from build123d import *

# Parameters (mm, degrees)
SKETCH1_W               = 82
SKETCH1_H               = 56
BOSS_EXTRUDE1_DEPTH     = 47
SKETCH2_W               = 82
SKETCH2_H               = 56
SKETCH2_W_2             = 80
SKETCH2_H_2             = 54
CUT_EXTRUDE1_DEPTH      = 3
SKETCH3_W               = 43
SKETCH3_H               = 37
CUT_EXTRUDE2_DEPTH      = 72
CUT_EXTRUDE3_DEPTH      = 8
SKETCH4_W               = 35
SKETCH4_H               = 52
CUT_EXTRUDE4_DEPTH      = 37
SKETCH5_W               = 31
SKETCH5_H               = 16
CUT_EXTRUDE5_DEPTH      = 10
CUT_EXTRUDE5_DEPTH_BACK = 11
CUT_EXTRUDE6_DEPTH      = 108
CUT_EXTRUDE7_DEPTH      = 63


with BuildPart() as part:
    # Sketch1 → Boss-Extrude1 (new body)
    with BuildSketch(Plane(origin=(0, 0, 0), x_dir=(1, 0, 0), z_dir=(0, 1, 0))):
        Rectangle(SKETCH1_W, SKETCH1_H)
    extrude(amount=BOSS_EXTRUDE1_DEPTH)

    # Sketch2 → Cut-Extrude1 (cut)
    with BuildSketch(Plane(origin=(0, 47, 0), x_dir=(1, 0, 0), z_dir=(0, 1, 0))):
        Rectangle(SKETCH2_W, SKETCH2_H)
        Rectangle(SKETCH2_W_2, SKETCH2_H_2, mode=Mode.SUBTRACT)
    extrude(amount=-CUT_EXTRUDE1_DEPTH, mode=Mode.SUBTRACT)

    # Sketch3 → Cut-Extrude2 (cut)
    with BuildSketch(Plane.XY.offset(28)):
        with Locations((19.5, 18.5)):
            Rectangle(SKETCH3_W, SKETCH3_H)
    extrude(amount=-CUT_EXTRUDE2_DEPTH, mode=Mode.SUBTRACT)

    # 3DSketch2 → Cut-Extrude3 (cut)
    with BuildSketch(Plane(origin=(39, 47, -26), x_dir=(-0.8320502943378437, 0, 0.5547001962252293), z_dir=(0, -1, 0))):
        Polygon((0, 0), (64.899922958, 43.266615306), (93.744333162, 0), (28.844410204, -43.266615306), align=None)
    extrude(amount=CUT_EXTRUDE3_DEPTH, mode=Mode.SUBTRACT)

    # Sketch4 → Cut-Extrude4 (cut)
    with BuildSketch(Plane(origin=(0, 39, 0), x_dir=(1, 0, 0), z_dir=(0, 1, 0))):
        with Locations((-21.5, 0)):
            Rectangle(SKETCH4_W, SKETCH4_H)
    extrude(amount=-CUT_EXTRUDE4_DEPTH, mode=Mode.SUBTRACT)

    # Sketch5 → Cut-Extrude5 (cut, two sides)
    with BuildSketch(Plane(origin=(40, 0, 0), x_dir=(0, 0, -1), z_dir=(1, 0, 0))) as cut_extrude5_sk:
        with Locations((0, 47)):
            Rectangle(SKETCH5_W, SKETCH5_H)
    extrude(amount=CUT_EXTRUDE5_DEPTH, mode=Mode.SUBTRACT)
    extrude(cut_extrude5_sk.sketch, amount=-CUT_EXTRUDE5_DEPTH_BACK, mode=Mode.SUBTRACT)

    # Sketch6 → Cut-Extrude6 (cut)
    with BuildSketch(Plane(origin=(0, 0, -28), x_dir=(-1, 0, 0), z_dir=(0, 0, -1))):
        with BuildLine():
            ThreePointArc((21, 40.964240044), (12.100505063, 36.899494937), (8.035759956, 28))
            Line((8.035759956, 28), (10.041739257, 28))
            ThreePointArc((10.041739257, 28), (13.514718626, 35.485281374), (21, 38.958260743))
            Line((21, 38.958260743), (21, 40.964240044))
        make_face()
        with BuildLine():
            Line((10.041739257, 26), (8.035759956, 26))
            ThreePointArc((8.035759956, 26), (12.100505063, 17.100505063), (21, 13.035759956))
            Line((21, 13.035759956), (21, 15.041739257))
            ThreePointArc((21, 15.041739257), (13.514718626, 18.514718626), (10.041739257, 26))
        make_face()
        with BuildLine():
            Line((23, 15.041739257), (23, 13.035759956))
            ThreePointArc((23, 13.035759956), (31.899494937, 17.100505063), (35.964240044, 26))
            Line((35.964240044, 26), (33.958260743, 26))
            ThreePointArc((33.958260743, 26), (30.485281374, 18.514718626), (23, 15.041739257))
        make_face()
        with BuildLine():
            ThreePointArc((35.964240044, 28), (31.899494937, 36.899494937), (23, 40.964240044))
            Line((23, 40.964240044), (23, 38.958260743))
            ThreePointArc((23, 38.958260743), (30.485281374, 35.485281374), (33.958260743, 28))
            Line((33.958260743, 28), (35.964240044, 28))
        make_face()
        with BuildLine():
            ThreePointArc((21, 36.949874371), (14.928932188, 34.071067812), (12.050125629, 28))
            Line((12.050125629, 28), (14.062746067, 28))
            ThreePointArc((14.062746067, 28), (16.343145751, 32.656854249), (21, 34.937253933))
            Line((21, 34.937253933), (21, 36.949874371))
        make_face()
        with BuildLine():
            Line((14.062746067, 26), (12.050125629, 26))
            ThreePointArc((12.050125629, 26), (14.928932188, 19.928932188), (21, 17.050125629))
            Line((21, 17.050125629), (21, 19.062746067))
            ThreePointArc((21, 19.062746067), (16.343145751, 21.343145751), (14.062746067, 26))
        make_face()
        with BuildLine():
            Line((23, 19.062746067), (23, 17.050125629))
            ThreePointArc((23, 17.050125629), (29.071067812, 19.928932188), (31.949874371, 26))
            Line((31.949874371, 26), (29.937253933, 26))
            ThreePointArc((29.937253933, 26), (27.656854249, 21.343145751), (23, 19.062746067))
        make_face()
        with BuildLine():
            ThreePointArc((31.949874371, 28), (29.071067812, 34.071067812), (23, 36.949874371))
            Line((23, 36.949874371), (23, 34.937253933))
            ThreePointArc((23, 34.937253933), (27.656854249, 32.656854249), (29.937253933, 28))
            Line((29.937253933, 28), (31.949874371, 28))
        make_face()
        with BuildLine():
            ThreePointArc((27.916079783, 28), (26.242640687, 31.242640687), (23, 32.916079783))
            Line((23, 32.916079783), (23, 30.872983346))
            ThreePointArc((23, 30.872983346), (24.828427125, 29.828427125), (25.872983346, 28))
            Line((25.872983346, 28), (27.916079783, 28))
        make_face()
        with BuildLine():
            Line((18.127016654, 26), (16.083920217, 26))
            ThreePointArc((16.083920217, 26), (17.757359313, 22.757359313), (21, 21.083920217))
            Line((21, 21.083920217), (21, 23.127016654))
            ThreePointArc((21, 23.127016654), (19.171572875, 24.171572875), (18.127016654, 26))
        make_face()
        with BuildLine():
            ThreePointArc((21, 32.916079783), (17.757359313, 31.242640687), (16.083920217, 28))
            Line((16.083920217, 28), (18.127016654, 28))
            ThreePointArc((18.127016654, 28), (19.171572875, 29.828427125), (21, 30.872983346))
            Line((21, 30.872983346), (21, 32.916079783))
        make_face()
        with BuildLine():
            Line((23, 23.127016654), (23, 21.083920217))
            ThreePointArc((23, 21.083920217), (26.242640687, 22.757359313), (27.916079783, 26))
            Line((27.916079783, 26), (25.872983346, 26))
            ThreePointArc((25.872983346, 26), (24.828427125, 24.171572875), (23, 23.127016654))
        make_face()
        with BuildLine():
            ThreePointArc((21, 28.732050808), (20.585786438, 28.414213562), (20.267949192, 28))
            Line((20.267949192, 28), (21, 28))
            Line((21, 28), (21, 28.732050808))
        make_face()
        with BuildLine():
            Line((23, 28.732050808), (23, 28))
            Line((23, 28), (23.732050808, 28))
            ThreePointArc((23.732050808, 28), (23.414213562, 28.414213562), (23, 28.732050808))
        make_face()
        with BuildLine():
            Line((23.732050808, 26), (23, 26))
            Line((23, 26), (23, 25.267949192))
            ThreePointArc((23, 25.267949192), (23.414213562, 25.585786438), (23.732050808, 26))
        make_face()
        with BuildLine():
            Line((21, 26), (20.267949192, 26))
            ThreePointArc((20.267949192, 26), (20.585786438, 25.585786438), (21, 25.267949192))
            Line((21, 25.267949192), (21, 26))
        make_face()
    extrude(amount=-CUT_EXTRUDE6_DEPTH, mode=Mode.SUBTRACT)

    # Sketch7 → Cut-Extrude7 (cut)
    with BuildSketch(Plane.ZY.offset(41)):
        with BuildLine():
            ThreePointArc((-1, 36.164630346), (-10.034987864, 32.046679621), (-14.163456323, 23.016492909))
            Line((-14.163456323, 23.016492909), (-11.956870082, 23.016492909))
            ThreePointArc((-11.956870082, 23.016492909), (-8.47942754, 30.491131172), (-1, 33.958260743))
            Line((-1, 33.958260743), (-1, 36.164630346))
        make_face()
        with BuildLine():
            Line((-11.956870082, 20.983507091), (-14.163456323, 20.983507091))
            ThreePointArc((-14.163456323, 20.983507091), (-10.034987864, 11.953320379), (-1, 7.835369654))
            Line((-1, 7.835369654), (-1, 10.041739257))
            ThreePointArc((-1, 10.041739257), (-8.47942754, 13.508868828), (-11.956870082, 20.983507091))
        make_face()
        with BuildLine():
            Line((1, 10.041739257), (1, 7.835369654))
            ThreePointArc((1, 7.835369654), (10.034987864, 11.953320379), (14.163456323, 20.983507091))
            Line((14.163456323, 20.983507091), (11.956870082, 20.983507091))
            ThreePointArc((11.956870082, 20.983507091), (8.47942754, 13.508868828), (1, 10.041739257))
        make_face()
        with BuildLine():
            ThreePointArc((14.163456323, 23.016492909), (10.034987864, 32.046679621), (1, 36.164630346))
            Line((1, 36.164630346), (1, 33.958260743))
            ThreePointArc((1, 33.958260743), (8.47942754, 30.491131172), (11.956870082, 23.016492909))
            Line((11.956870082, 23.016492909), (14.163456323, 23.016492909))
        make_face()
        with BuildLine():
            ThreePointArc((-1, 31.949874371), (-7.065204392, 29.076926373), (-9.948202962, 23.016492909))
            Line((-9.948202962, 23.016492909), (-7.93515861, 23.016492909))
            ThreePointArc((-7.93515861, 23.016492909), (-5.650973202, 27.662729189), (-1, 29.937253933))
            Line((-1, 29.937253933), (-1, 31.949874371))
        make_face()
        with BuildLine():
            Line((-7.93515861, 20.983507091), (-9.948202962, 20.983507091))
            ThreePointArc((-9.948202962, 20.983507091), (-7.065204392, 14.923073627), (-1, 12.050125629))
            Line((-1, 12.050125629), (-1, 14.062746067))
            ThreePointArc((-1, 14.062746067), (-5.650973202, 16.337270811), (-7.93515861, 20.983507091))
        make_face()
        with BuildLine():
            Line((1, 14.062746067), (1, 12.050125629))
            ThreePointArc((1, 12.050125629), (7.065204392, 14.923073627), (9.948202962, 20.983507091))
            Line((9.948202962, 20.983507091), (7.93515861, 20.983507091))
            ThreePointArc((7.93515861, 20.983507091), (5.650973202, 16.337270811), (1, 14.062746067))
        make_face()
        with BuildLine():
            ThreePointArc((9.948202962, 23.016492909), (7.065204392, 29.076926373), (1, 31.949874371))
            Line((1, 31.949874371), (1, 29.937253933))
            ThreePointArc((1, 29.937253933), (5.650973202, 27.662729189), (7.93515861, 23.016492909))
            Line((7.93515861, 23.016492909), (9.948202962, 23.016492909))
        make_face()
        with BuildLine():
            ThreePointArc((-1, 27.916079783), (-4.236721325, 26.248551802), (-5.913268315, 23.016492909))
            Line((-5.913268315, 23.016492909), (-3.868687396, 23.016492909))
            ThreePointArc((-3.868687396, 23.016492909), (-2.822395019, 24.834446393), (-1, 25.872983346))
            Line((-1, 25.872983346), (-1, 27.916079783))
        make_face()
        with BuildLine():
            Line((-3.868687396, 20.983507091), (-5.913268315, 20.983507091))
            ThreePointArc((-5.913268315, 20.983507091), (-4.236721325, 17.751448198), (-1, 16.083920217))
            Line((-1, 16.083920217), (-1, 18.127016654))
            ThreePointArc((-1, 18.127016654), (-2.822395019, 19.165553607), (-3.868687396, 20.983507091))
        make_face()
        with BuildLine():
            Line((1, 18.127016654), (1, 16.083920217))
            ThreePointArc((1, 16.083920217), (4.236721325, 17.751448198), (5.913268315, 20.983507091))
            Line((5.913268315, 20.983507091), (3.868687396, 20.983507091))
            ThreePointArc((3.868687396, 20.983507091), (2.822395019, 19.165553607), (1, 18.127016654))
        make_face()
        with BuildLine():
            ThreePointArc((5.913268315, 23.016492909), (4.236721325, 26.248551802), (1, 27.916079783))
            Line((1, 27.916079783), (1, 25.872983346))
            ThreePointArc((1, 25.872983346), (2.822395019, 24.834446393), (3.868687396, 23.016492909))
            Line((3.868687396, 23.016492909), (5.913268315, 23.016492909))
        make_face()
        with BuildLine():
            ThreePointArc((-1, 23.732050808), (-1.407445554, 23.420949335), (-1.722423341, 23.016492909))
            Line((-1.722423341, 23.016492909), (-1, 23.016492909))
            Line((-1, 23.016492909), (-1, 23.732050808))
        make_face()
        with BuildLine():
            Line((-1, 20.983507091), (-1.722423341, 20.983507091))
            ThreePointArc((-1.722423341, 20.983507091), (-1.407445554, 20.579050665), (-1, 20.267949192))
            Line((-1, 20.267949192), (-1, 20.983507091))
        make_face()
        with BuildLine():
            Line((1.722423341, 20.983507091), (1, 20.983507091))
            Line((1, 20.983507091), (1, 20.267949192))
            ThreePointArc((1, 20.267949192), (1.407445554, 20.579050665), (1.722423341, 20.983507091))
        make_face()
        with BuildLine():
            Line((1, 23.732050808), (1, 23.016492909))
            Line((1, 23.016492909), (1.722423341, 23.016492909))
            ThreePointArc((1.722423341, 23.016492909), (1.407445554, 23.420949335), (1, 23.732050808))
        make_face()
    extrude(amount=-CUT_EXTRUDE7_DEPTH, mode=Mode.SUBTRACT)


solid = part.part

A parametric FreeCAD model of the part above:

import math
import FreeCAD as App
import Part
import Sketcher
from FreeCAD import Vector
Q = App.Units.Quantity


def add_polygon(sketch, points):
    """Adds a closed chain of lines whose ends are joined by coincident constraints."""
    first, n = sketch.GeometryCount, len(points)
    for a, b in zip(points, points[1:] + points[:1]):
        sketch.addGeometry(Part.LineSegment(App.Vector(*a, 0), App.Vector(*b, 0)), False)
    for i in range(n):
        sketch.addConstraint(Sketcher.Constraint("Coincident", first + i, 2, first + (i + 1) % n, 1))

doc = App.newDocument("Part")
params = doc.addObject("Spreadsheet::Sheet", "Params")
for row, (alias, value) in enumerate([
    ("sketch1_width", "82 mm"),
    ("sketch1_height", "56 mm"),
    ("pad1_length", "47 mm"),
    ("sketch2_width", "82 mm"),
    ("sketch2_width2", "80 mm"),
    ("sketch2_height", "56 mm"),
    ("sketch2_height2", "54 mm"),
    ("pocket1_length", "3 mm"),
    ("sketch3_width", "43 mm"),
    ("sketch3_height", "37 mm"),
    ("pocket2_length", "72 mm"),
    ("sketch4_width", "78 mm"),
    ("sketch4_height", "52 mm"),
    ("pocket3_length", "8 mm"),
    ("sketch5_width", "35 mm"),
    ("sketch5_height", "52 mm"),
    ("pocket4_length", "37 mm"),
    ("sketch6_width", "16 mm"),
    ("sketch6_height", "31 mm"),
    ("pocket5_length", "10 mm"),
    ("pocket5_length2", "11 mm"),
    ("sketch7_radius", "14 mm"),
    ("sketch7_radius2", "12 mm"),
    ("sketch7_radius3", "10 mm"),
    ("sketch7_radius4", "8 mm"),
    ("sketch7_radius5", "6 mm"),
    ("pocket6_length", "108 mm"),
    ("sketch8_radius", "12 mm"),
    ("sketch8_radius2", "10 mm"),
    ("sketch8_radius3", "8 mm"),
    ("sketch8_radius4", "6 mm"),
    ("sketch8_radius5", "4 mm"),
    ("pocket7_length", "63 mm"),
], start=1):
    params.set(f"A{row}", alias)
    params.set(f"B{row}", "=" + value)
    params.setAlias(f"B{row}", alias)

body = doc.addObject("PartDesign::Body", "Body")

sketch1 = doc.addObject("Sketcher::SketchObject", "Sketch")
body.addObject(sketch1)
sketch1.AttachmentSupport = (doc.XZ_Plane, [""])
sketch1.MapMode = "FlatFace"
add_polygon(sketch1, [(-41, -28), (-41, 28), (41, 28), (41, -28)])
sketch1.addConstraint([
    Sketcher.Constraint("Vertical", 0),
    Sketcher.Constraint("Horizontal", 1),
    Sketcher.Constraint("Vertical", 2),
    Sketcher.Constraint("Horizontal", 3),
    Sketcher.Constraint("Symmetric", 0, 2, 2, 2, -1, 1),
    Sketcher.Constraint("DistanceX", 1, 1, 1, 2, Q("82 mm")),
    Sketcher.Constraint("DistanceY", 0, 1, 0, 2, Q("56 mm")),
])
sketch1.setExpression("Constraints[9]", "Params.sketch1_width")
sketch1.setExpression("Constraints[10]", "Params.sketch1_height")
pad1 = doc.addObject("PartDesign::Pad", "Pad")
body.addObject(pad1)
pad1.Profile = sketch1
pad1.setExpression("Length", "Params.pad1_length")
pad1.Reversed = True

sketch2 = doc.addObject("Sketcher::SketchObject", "Sketch001")
body.addObject(sketch2)
sketch2.AttachmentSupport = (doc.XZ_Plane, [""])
sketch2.MapMode = "FlatFace"
sketch2.AttachmentOffset = App.Placement(Vector(0, 0, -47), App.Rotation())
add_polygon(sketch2, [(-41, -28), (-41, 28), (41, 28), (41, -28)])
add_polygon(sketch2, [(40, 27), (-40, 27), (-40, -27), (40, -27)])
sketch2.addConstraint([
    Sketcher.Constraint("Vertical", 0),
    Sketcher.Constraint("Horizontal", 1),
    Sketcher.Constraint("Vertical", 2),
    Sketcher.Constraint("Horizontal", 3),
    Sketcher.Constraint("Horizontal", 4),
    Sketcher.Constraint("Vertical", 5),
    Sketcher.Constraint("Horizontal", 6),
    Sketcher.Constraint("Vertical", 7),
    Sketcher.Constraint("Symmetric", 0, 2, 2, 2, -1, 1),
    Sketcher.Constraint("Symmetric", 4, 2, 6, 2, -1, 1),
    Sketcher.Constraint("DistanceX", 1, 1, 1, 2, Q("82 mm")),
    Sketcher.Constraint("DistanceX", 4, 2, 4, 1, Q("80 mm")),
    Sketcher.Constraint("DistanceY", 0, 1, 0, 2, Q("56 mm")),
    Sketcher.Constraint("DistanceY", 5, 2, 5, 1, Q("54 mm")),
])
sketch2.setExpression("Constraints[18]", "Params.sketch2_width")
sketch2.setExpression("Constraints[19]", "Params.sketch2_width2")
sketch2.setExpression("Constraints[20]", "Params.sketch2_height")
sketch2.setExpression("Constraints[21]", "Params.sketch2_height2")
pocket1 = doc.addObject("PartDesign::Pocket", "Pocket")
body.addObject(pocket1)
pocket1.Profile = sketch2
pocket1.setExpression("Length", "Params.pocket1_length")
pocket1.Reversed = True

sketch3 = doc.addObject("Sketcher::SketchObject", "Sketch002")
body.addObject(sketch3)
sketch3.AttachmentSupport = (doc.XY_Plane, [""])
sketch3.MapMode = "FlatFace"
sketch3.AttachmentOffset = App.Placement(Vector(0, 0, 28), App.Rotation())
add_polygon(sketch3, [(-2, 37), (-2, 0), (41, 0), (41, 37)])
sketch3.addConstraint([
    Sketcher.Constraint("Vertical", 0),
    Sketcher.Constraint("Horizontal", 1),
    Sketcher.Constraint("Vertical", 2),
    Sketcher.Constraint("Horizontal", 3),
    Sketcher.Constraint("PointOnObject", 0, 2, -1),
    Sketcher.Constraint("DistanceX", 1, 1, 1, 2, Q("43 mm")),
    Sketcher.Constraint("DistanceY", 0, 2, 0, 1, Q("37 mm")),
    Sketcher.Constraint("DistanceX", 0, 2, -1, 1, Q("2 mm")),
])
sketch3.setExpression("Constraints[9]", "Params.sketch3_width")
sketch3.setExpression("Constraints[10]", "Params.sketch3_height")
pocket2 = doc.addObject("PartDesign::Pocket", "Pocket001")
body.addObject(pocket2)
pocket2.Profile = sketch3
pocket2.setExpression("Length", "Params.pocket2_length")

sketch4 = doc.addObject("Sketcher::SketchObject", "Sketch003")
body.addObject(sketch4)
sketch4.AttachmentSupport = (doc.XZ_Plane, [""])
sketch4.MapMode = "FlatFace"
sketch4.AttachmentOffset = App.Placement(Vector(0, 0, -47), App.Rotation())
add_polygon(sketch4, [(-39, -26), (39, -26), (39, 26), (-39, 26)])
sketch4.addConstraint([
    Sketcher.Constraint("Horizontal", 0),
    Sketcher.Constraint("Vertical", 1),
    Sketcher.Constraint("Horizontal", 2),
    Sketcher.Constraint("Vertical", 3),
    Sketcher.Constraint("Symmetric", 0, 2, 2, 2, -1, 1),
    Sketcher.Constraint("DistanceX", 0, 1, 0, 2, Q("78 mm")),
    Sketcher.Constraint("DistanceY", 1, 1, 1, 2, Q("52 mm")),
])
sketch4.setExpression("Constraints[9]", "Params.sketch4_width")
sketch4.setExpression("Constraints[10]", "Params.sketch4_height")
pocket3 = doc.addObject("PartDesign::Pocket", "Pocket002")
body.addObject(pocket3)
pocket3.Profile = sketch4
pocket3.setExpression("Length", "Params.pocket3_length")
pocket3.Reversed = True

sketch5 = doc.addObject("Sketcher::SketchObject", "Sketch004")
body.addObject(sketch5)
sketch5.AttachmentSupport = (doc.XZ_Plane, [""])
sketch5.MapMode = "FlatFace"
sketch5.AttachmentOffset = App.Placement(Vector(0, 0, -39), App.Rotation())
add_polygon(sketch5, [(-39, -26), (-39, 26), (-4, 26), (-4, -26)])
sketch5.addConstraint([
    Sketcher.Constraint("Vertical", 0),
    Sketcher.Constraint("Horizontal", 1),
    Sketcher.Constraint("Vertical", 2),
    Sketcher.Constraint("Horizontal", 3),
    Sketcher.Constraint("DistanceX", 1, 1, 1, 2, Q("35 mm")),
    Sketcher.Constraint("DistanceY", 0, 1, 0, 2, Q("52 mm")),
    Sketcher.Constraint("DistanceX", 0, 2, -1, 1, Q("39 mm")),
    Sketcher.Constraint("DistanceY", -1, 1, 0, 2, Q("26 mm")),
])
sketch5.setExpression("Constraints[8]", "Params.sketch5_width")
sketch5.setExpression("Constraints[9]", "Params.sketch5_height")
pocket4 = doc.addObject("PartDesign::Pocket", "Pocket003")
body.addObject(pocket4)
pocket4.Profile = sketch5
pocket4.setExpression("Length", "Params.pocket4_length")
pocket4.Reversed = True

sketch6 = doc.addObject("Sketcher::SketchObject", "Sketch005")
body.addObject(sketch6)
sketch6.AttachmentSupport = (doc.YZ_Plane, [""])
sketch6.MapMode = "FlatFace"
sketch6.AttachmentOffset = App.Placement(Vector(0, 0, 40), App.Rotation())
add_polygon(sketch6, [(55, 16), (39, 16), (39, -16), (55, -16)])
sketch6.addConstraint([
    Sketcher.Constraint("Horizontal", 0),
    Sketcher.Constraint("Vertical", 1),
    Sketcher.Constraint("Horizontal", 2),
    Sketcher.Constraint("Vertical", 3),
    Sketcher.Constraint("DistanceX", 0, 2, 0, 1, Q("16 mm")),
    Sketcher.Constraint("DistanceY", 1, 2, 1, 1, Q("31 mm")),
    Sketcher.Constraint("DistanceX", -1, 1, 0, 2, Q("39 mm")),
    Sketcher.Constraint("DistanceY", -1, 1, 0, 2, Q("15.5 mm")),
])
sketch6.setExpression("Constraints[8]", "Params.sketch6_width")
sketch6.setExpression("Constraints[9]", "Params.sketch6_height")
pocket5 = doc.addObject("PartDesign::Pocket", "Pocket004")
body.addObject(pocket5)
pocket5.Profile = sketch6
pocket5.Type = "TwoLengths"
pocket5.setExpression("Length", "Params.pocket5_length")
pocket5.setExpression("Length2", "Params.pocket5_length2")
pocket5.Reversed = True

sketch7 = doc.addObject("Sketcher::SketchObject", "Sketch006")
body.addObject(sketch7)
sketch7.AttachmentSupport = (doc.XY_Plane, [""])
sketch7.MapMode = "FlatFace"
sketch7.AttachmentOffset = App.Placement(Vector(0, 0, -28), App.Rotation())
sketch7.addGeometry([
    Part.ArcOfCircle(Part.Circle(Vector(-22, 27, 0), Vector(0, 0, 1), 14), math.radians(4), math.radians(86)),
    Part.LineSegment(Vector(-8, 28, 0), Vector(-10, 28, 0)),
    Part.ArcOfCircle(Part.Circle(Vector(-22, 27, 0), Vector(0, 0, 1), 12), math.radians(5), math.radians(85)),
    Part.LineSegment(Vector(-21, 39, 0), Vector(-21, 41, 0)),
    Part.LineSegment(Vector(-10, 26, 0), Vector(-8, 26, 0)),
    Part.ArcOfCircle(Part.Circle(Vector(-22, 27, 0), Vector(0, 0, 1), 14), math.radians(-86), math.radians(-4)),
    Part.LineSegment(Vector(-21, 13, 0), Vector(-21, 15, 0)),
    Part.ArcOfCircle(Part.Circle(Vector(-22, 27, 0), Vector(0, 0, 1), 12), math.radians(-85), math.radians(-5)),
    Part.LineSegment(Vector(-23, 15, 0), Vector(-23, 13, 0)),
    Part.ArcOfCircle(Part.Circle(Vector(-22, 27, 0), Vector(0, 0, 1), 14), math.radians(-176), math.radians(-94)),
    Part.LineSegment(Vector(-36, 26, 0), Vector(-34, 26, 0)),
    Part.ArcOfCircle(Part.Circle(Vector(-22, 27, 0), Vector(0, 0, 1), 12), math.radians(-175), math.radians(-95)),
    Part.ArcOfCircle(Part.Circle(Vector(-22, 27, 0), Vector(0, 0, 1), 14), math.radians(94), math.radians(176)),
    Part.LineSegment(Vector(-23, 41, 0), Vector(-23, 39, 0)),
    Part.ArcOfCircle(Part.Circle(Vector(-22, 27, 0), Vector(0, 0, 1), 12), math.radians(95), math.radians(175)),
    Part.LineSegment(Vector(-34, 28, 0), Vector(-36, 28, 0)),
    Part.ArcOfCircle(Part.Circle(Vector(-22, 27, 0), Vector(0, 0, 1), 10), math.radians(6), math.radians(84)),
    Part.LineSegment(Vector(-12.1, 28, 0), Vector(-14.1, 28, 0)),
    Part.ArcOfCircle(Part.Circle(Vector(-22, 27, 0), Vector(0, 0, 1), 8), math.radians(7), math.radians(83)),
    Part.LineSegment(Vector(-21, 34.9, 0), Vector(-21, 36.9, 0)),
    Part.LineSegment(Vector(-14.1, 26, 0), Vector(-12.1, 26, 0)),
    Part.ArcOfCircle(Part.Circle(Vector(-22, 27, 0), Vector(0, 0, 1), 10), math.radians(-84), math.radians(-6)),
    Part.LineSegment(Vector(-21, 17.1, 0), Vector(-21, 19.1, 0)),
    Part.ArcOfCircle(Part.Circle(Vector(-22, 27, 0), Vector(0, 0, 1), 8), math.radians(-83), math.radians(-7)),
    Part.LineSegment(Vector(-23, 19.1, 0), Vector(-23, 17.1, 0)),
    Part.ArcOfCircle(Part.Circle(Vector(-22, 27, 0), Vector(0, 0, 1), 10), math.radians(-174), math.radians(-96)),
    Part.LineSegment(Vector(-31.9, 26, 0), Vector(-29.9, 26, 0)),
    Part.ArcOfCircle(Part.Circle(Vector(-22, 27, 0), Vector(0, 0, 1), 8), math.radians(-173), math.radians(-97)),
    Part.ArcOfCircle(Part.Circle(Vector(-22, 27, 0), Vector(0, 0, 1), 10), math.radians(96), math.radians(174)),
    Part.LineSegment(Vector(-23, 36.9, 0), Vector(-23, 34.9, 0)),
    Part.ArcOfCircle(Part.Circle(Vector(-22, 27, 0), Vector(0, 0, 1), 8), math.radians(97), math.radians(173)),
    Part.LineSegment(Vector(-29.9, 28, 0), Vector(-31.9, 28, 0)),
    Part.ArcOfCircle(Part.Circle(Vector(-22, 27, 0), Vector(0, 0, 1), 6), math.radians(100), math.radians(170)),
    Part.LineSegment(Vector(-23, 32.9, 0), Vector(-23, 30.9, 0)),
    Part.ArcOfCircle(Part.Circle(Vector(-22, 27, 0), Vector(0, 0, 1), 4), math.radians(104), math.radians(166)),
    Part.LineSegment(Vector(-25.9, 28, 0), Vector(-27.9, 28, 0)),
    Part.LineSegment(Vector(-18.1, 26, 0), Vector(-16.1, 26, 0)),
    Part.ArcOfCircle(Part.Circle(Vector(-22, 27, 0), Vector(0, 0, 1), 6), math.radians(-80), math.radians(-10)),
    Part.LineSegment(Vector(-21, 21.1, 0), Vector(-21, 23.1, 0)),
    Part.ArcOfCircle(Part.Circle(Vector(-22, 27, 0), Vector(0, 0, 1), 4), math.radians(-76), math.radians(-14)),
    Part.ArcOfCircle(Part.Circle(Vector(-22, 27, 0), Vector(0, 0, 1), 6), math.radians(10), math.radians(80)),
    Part.LineSegment(Vector(-16.1, 28, 0), Vector(-18.1, 28, 0)),
    Part.ArcOfCircle(Part.Circle(Vector(-22, 27, 0), Vector(0, 0, 1), 4), math.radians(14), math.radians(76)),
    Part.LineSegment(Vector(-21, 30.9, 0), Vector(-21, 32.9, 0)),
    Part.LineSegment(Vector(-23, 23.1, 0), Vector(-23, 21.1, 0)),
    Part.ArcOfCircle(Part.Circle(Vector(-22, 27, 0), Vector(0, 0, 1), 6), math.radians(-170), math.radians(-100)),
    Part.LineSegment(Vector(-27.9, 26, 0), Vector(-25.9, 26, 0)),
    Part.ArcOfCircle(Part.Circle(Vector(-22, 27, 0), Vector(0, 0, 1), 4), math.radians(-166), math.radians(-104)),
    Part.ArcOfCircle(Part.Circle(Vector(-22, 27, 0), Vector(0, 0, 1), 2), math.radians(30), math.radians(60)),
    Part.LineSegment(Vector(-20.3, 28, 0), Vector(-21, 28, 0)),
    Part.LineSegment(Vector(-21, 28, 0), Vector(-21, 28.7, 0)),
    Part.LineSegment(Vector(-23, 28.7, 0), Vector(-23, 28, 0)),
    Part.LineSegment(Vector(-23, 28, 0), Vector(-23.7, 28, 0)),
    Part.ArcOfCircle(Part.Circle(Vector(-22, 27, 0), Vector(0, 0, 1), 2), math.radians(120), math.radians(150)),
    Part.LineSegment(Vector(-23.7, 26, 0), Vector(-23, 26, 0)),
    Part.LineSegment(Vector(-23, 26, 0), Vector(-23, 25.3, 0)),
    Part.ArcOfCircle(Part.Circle(Vector(-22, 27, 0), Vector(0, 0, 1), 2), math.radians(-150), math.radians(-120)),
    Part.LineSegment(Vector(-21, 26, 0), Vector(-20.3, 26, 0)),
    Part.ArcOfCircle(Part.Circle(Vector(-22, 27, 0), Vector(0, 0, 1), 2), math.radians(-60), math.radians(-30)),
    Part.LineSegment(Vector(-21, 25.3, 0), Vector(-21, 26, 0)),
], False)
sketch7.addConstraint([
    Sketcher.Constraint("Coincident", 0, 1, 1, 1),
    Sketcher.Constraint("Coincident", 1, 2, 2, 1),
    Sketcher.Constraint("Coincident", 2, 2, 3, 1),
    Sketcher.Constraint("Coincident", 3, 2, 0, 2),
    Sketcher.Constraint("Coincident", 4, 2, 5, 2),
    Sketcher.Constraint("Coincident", 5, 1, 6, 1),
    Sketcher.Constraint("Coincident", 6, 2, 7, 1),
    Sketcher.Constraint("Coincident", 7, 2, 4, 1),
    Sketcher.Constraint("Coincident", 8, 2, 9, 2),
    Sketcher.Constraint("Coincident", 9, 1, 10, 1),
    Sketcher.Constraint("Coincident", 10, 2, 11, 1),
    Sketcher.Constraint("Coincident", 11, 2, 8, 1),
    Sketcher.Constraint("Coincident", 12, 1, 13, 1),
    Sketcher.Constraint("Coincident", 13, 2, 14, 1),
    Sketcher.Constraint("Coincident", 14, 2, 15, 1),
    Sketcher.Constraint("Coincident", 15, 2, 12, 2),
    Sketcher.Constraint("Coincident", 16, 1, 17, 1),
    Sketcher.Constraint("Coincident", 17, 2, 18, 1),
    Sketcher.Constraint("Coincident", 18, 2, 19, 1),
    Sketcher.Constraint("Coincident", 19, 2, 16, 2),
    Sketcher.Constraint("Coincident", 20, 2, 21, 2),
    Sketcher.Constraint("Coincident", 21, 1, 22, 1),
    Sketcher.Constraint("Coincident", 22, 2, 23, 1),
    Sketcher.Constraint("Coincident", 23, 2, 20, 1),
    Sketcher.Constraint("Coincident", 24, 2, 25, 2),
    Sketcher.Constraint("Coincident", 25, 1, 26, 1),
    Sketcher.Constraint("Coincident", 26, 2, 27, 1),
    Sketcher.Constraint("Coincident", 27, 2, 24, 1),
    Sketcher.Constraint("Coincident", 28, 1, 29, 1),
    Sketcher.Constraint("Coincident", 29, 2, 30, 1),
    Sketcher.Constraint("Coincident", 30, 2, 31, 1),
    Sketcher.Constraint("Coincident", 31, 2, 28, 2),
    Sketcher.Constraint("Coincident", 32, 1, 33, 1),
    Sketcher.Constraint("Coincident", 33, 2, 34, 1),
    Sketcher.Constraint("Coincident", 34, 2, 35, 1),
    Sketcher.Constraint("Coincident", 35, 2, 32, 2),
    Sketcher.Constraint("Coincident", 36, 2, 37, 2),
    Sketcher.Constraint("Coincident", 37, 1, 38, 1),
    Sketcher.Constraint("Coincident", 38, 2, 39, 1),
    Sketcher.Constraint("Coincident", 39, 2, 36, 1),
    Sketcher.Constraint("Coincident", 40, 1, 41, 1),
    Sketcher.Constraint("Coincident", 41, 2, 42, 1),
    Sketcher.Constraint("Coincident", 42, 2, 43, 1),
    Sketcher.Constraint("Coincident", 43, 2, 40, 2),
    Sketcher.Constraint("Coincident", 44, 2, 45, 2),
    Sketcher.Constraint("Coincident", 45, 1, 46, 1),
    Sketcher.Constraint("Coincident", 46, 2, 47, 1),
    Sketcher.Constraint("Coincident", 47, 2, 44, 1),
    Sketcher.Constraint("Coincident", 48, 1, 49, 1),
    Sketcher.Constraint("Coincident", 49, 2, 50, 1),
    Sketcher.Constraint("Coincident", 50, 2, 48, 2),
    Sketcher.Constraint("Coincident", 51, 2, 52, 1),
    Sketcher.Constraint("Coincident", 52, 2, 53, 2),
    Sketcher.Constraint("Coincident", 53, 1, 51, 1),
    Sketcher.Constraint("Coincident", 54, 2, 55, 1),
    Sketcher.Constraint("Coincident", 55, 2, 56, 2),
    Sketcher.Constraint("Coincident", 56, 1, 54, 1),
    Sketcher.Constraint("Coincident", 57, 2, 58, 2),
    Sketcher.Constraint("Coincident", 58, 1, 59, 1),
    Sketcher.Constraint("Coincident", 59, 2, 57, 1),
    Sketcher.Constraint("Horizontal", 1),
    Sketcher.Constraint("Vertical", 3),
    Sketcher.Constraint("Horizontal", 4),
    Sketcher.Constraint("Vertical", 6),
    Sketcher.Constraint("Vertical", 8),
    Sketcher.Constraint("Horizontal", 10),
    Sketcher.Constraint("Vertical", 13),
    Sketcher.Constraint("Horizontal", 15),
    Sketcher.Constraint("Horizontal", 17),
    Sketcher.Constraint("Vertical", 19),
    Sketcher.Constraint("Horizontal", 20),
    Sketcher.Constraint("Vertical", 22),
    Sketcher.Constraint("Vertical", 24),
    Sketcher.Constraint("Horizontal", 26),
    Sketcher.Constraint("Vertical", 29),
    Sketcher.Constraint("Horizontal", 31),
    Sketcher.Constraint("Vertical", 33),
    Sketcher.Constraint("Horizontal", 35),
    Sketcher.Constraint("Horizontal", 36),
    Sketcher.Constraint("Vertical", 38),
    Sketcher.Constraint("Horizontal", 41),
    Sketcher.Constraint("Vertical", 43),
    Sketcher.Constraint("Vertical", 44),
    Sketcher.Constraint("Horizontal", 46),
    Sketcher.Constraint("Horizontal", 49),
    Sketcher.Constraint("Vertical", 50),
    Sketcher.Constraint("Vertical", 51),
    Sketcher.Constraint("Horizontal", 52),
    Sketcher.Constraint("Horizontal", 54),
    Sketcher.Constraint("Vertical", 55),
    Sketcher.Constraint("Horizontal", 57),
    Sketcher.Constraint("Vertical", 59),
    Sketcher.Constraint("Coincident", 2, 3, 0, 3),
    Sketcher.Constraint("Coincident", 5, 3, 0, 3),
    Sketcher.Constraint("Coincident", 7, 3, 0, 3),
    Sketcher.Constraint("Coincident", 9, 3, 0, 3),
    Sketcher.Constraint("Coincident", 11, 3, 0, 3),
    Sketcher.Constraint("Coincident", 12, 3, 0, 3),
    Sketcher.Constraint("Coincident", 14, 3, 0, 3),
    Sketcher.Constraint("Coincident", 16, 3, 0, 3),
    Sketcher.Constraint("Coincident", 18, 3, 0, 3),
    Sketcher.Constraint("Coincident", 21, 3, 0, 3),
    Sketcher.Constraint("Coincident", 23, 3, 0, 3),
    Sketcher.Constraint("Coincident", 25, 3, 0, 3),
    Sketcher.Constraint("Coincident", 27, 3, 0, 3),
    Sketcher.Constraint("Coincident", 28, 3, 0, 3),
    Sketcher.Constraint("Coincident", 30, 3, 0, 3),
    Sketcher.Constraint("Coincident", 32, 3, 0, 3),
    Sketcher.Constraint("Coincident", 34, 3, 0, 3),
    Sketcher.Constraint("Coincident", 37, 3, 0, 3),
    Sketcher.Constraint("Coincident", 39, 3, 0, 3),
    Sketcher.Constraint("Coincident", 40, 3, 0, 3),
    Sketcher.Constraint("Coincident", 42, 3, 0, 3),
    Sketcher.Constraint("Coincident", 45, 3, 0, 3),
    Sketcher.Constraint("Coincident", 47, 3, 0, 3),
    Sketcher.Constraint("Coincident", 48, 3, 0, 3),
    Sketcher.Constraint("Coincident", 53, 3, 0, 3),
    Sketcher.Constraint("Coincident", 56, 3, 0, 3),
    Sketcher.Constraint("Coincident", 58, 3, 0, 3),
    Sketcher.Constraint("Equal", 0, 5),
    Sketcher.Constraint("Equal", 2, 7),
    Sketcher.Constraint("Equal", 5, 9),
    Sketcher.Constraint("Equal", 7, 11),
    Sketcher.Constraint("Equal", 9, 12),
    Sketcher.Constraint("Equal", 11, 14),
    Sketcher.Constraint("Equal", 16, 21),
    Sketcher.Constraint("Equal", 18, 23),
    Sketcher.Constraint("Equal", 21, 25),
    Sketcher.Constraint("Equal", 23, 27),
    Sketcher.Constraint("Equal", 25, 28),
    Sketcher.Constraint("Equal", 27, 30),
    Sketcher.Constraint("Equal", 32, 37),
    Sketcher.Constraint("Equal", 34, 39),
    Sketcher.Constraint("Equal", 37, 40),
    Sketcher.Constraint("Equal", 39, 42),
    Sketcher.Constraint("Equal", 40, 45),
    Sketcher.Constraint("Equal", 42, 47),
    Sketcher.Constraint("Equal", 48, 53),
    Sketcher.Constraint("Equal", 53, 56),
    Sketcher.Constraint("Equal", 56, 58),
    Sketcher.Constraint("Horizontal", 5, 1, 8, 2),
    Sketcher.Constraint("Horizontal", 7, 2, 9, 1),
    Sketcher.Constraint("Horizontal", 3, 2, 12, 1),
    Sketcher.Constraint("Horizontal", 1, 2, 14, 2),
    Sketcher.Constraint("Horizontal", 15, 2, 16, 1),
    Sketcher.Constraint("Horizontal", 10, 2, 20, 2),
    Sketcher.Constraint("Horizontal", 21, 1, 24, 2),
    Sketcher.Constraint("Horizontal", 23, 2, 25, 1),
    Sketcher.Constraint("Horizontal", 19, 2, 28, 1),
    Sketcher.Constraint("Horizontal", 17, 2, 30, 2),
    Sketcher.Constraint("Horizontal", 31, 2, 34, 2),
    Sketcher.Constraint("Horizontal", 26, 2, 36, 2),
    Sketcher.Constraint("Horizontal", 35, 2, 40, 1),
    Sketcher.Constraint("Horizontal", 33, 2, 42, 2),
    Sketcher.Constraint("Horizontal", 37, 1, 44, 2),
    Sketcher.Constraint("Horizontal", 39, 2, 45, 1),
    Sketcher.Constraint("Horizontal", 41, 2, 48, 1),
    Sketcher.Constraint("Horizontal", 49, 2, 51, 2),
    Sketcher.Constraint("Horizontal", 50, 2, 53, 1),
    Sketcher.Constraint("Horizontal", 46, 2, 54, 2),
    Sketcher.Constraint("Horizontal", 56, 1, 57, 2),
    Sketcher.Constraint("Horizontal", 55, 2, 58, 1),
    Sketcher.Constraint("Vertical", 0, 1, 4, 2),
    Sketcher.Constraint("Vertical", 3, 2, 5, 1),
    Sketcher.Constraint("Vertical", 6, 2, 18, 2),
    Sketcher.Constraint("Vertical", 19, 2, 21, 1),
    Sketcher.Constraint("Vertical", 29, 2, 32, 1),
    Sketcher.Constraint("Vertical", 22, 2, 37, 1),
    Sketcher.Constraint("Vertical", 43, 2, 49, 2),
    Sketcher.Constraint("Vertical", 53, 1, 54, 2),
    Sketcher.Constraint("Equal", 31, 19),
    Sketcher.Constraint("Radius", 0, Q("14 mm")),
    Sketcher.Constraint("Radius", 2, Q("12 mm")),
    Sketcher.Constraint("Radius", 16, Q("10 mm")),
    Sketcher.Constraint("Radius", 18, Q("8 mm")),
    Sketcher.Constraint("Radius", 32, Q("6 mm")),
    Sketcher.Constraint("Radius", 34, Q("4 mm")),
    Sketcher.Constraint("Radius", 48, Q("2 mm")),
    Sketcher.Constraint("DistanceX", 0, 3, -1, 1, Q("22 mm")),
    Sketcher.Constraint("DistanceY", -1, 1, 0, 3, Q("27 mm")),
    Sketcher.Constraint("DistanceY", -1, 1, 0, 1, Q("28 mm")),
])
sketch7.setExpression("Constraints[171]", "Params.sketch7_radius")
sketch7.setExpression("Constraints[172]", "Params.sketch7_radius2")
sketch7.setExpression("Constraints[173]", "Params.sketch7_radius3")
sketch7.setExpression("Constraints[174]", "Params.sketch7_radius4")
sketch7.setExpression("Constraints[175]", "Params.sketch7_radius5")
pocket6 = doc.addObject("PartDesign::Pocket", "Pocket005")
body.addObject(pocket6)
pocket6.Profile = sketch7
pocket6.setExpression("Length", "Params.pocket6_length")
pocket6.Reversed = True

sketch8 = doc.addObject("Sketcher::SketchObject", "Sketch007")
body.addObject(sketch8)
sketch8.AttachmentSupport = (doc.YZ_Plane, [""])
sketch8.MapMode = "FlatFace"
sketch8.AttachmentOffset = App.Placement(Vector(0, 0, -41), App.Rotation())
sketch8.addGeometry([
    Part.ArcOfCircle(Part.Circle(Vector(22, 0, 0), Vector(0, 0, 1), 14.2), math.radians(-86), math.radians(-4)),
    Part.LineSegment(Vector(23, -14.2, 0), Vector(23, -12, 0)),
    Part.ArcOfCircle(Part.Circle(Vector(22, 0, 0), Vector(0, 0, 1), 12), math.radians(-85), math.radians(-5)),
    Part.LineSegment(Vector(34, -1, 0), Vector(36.2, -1, 0)),
    Part.LineSegment(Vector(21, -12, 0), Vector(21, -14.2, 0)),
    Part.ArcOfCircle(Part.Circle(Vector(22, 0, 0), Vector(0, 0, 1), 14.2), math.radians(-176), math.radians(-94)),
    Part.LineSegment(Vector(7.8, -1, 0), Vector(10, -1, 0)),
    Part.ArcOfCircle(Part.Circle(Vector(22, 0, 0), Vector(0, 0, 1), 12), math.radians(-175), math.radians(-95)),
    Part.LineSegment(Vector(10, 1, 0), Vector(7.8, 1, 0)),
    Part.ArcOfCircle(Part.Circle(Vector(22, 0, 0), Vector(0, 0, 1), 14.2), math.radians(94), math.radians(176)),
    Part.LineSegment(Vector(21, 14.2, 0), Vector(21, 12, 0)),
    Part.ArcOfCircle(Part.Circle(Vector(22, 0, 0), Vector(0, 0, 1), 12), math.radians(95), math.radians(175)),
    Part.ArcOfCircle(Part.Circle(Vector(22, 0, 0), Vector(0, 0, 1), 14.2), math.radians(4), math.radians(86)),
    Part.LineSegment(Vector(36.2, 1, 0), Vector(34, 1, 0)),
    Part.ArcOfCircle(Part.Circle(Vector(22, 0, 0), Vector(0, 0, 1), 12), math.radians(5), math.radians(85)),
    Part.LineSegment(Vector(23, 12, 0), Vector(23, 14.2, 0)),
    Part.ArcOfCircle(Part.Circle(Vector(22, 0, 0), Vector(0, 0, 1), 10), math.radians(-84), math.radians(-6)),
    Part.LineSegment(Vector(23, -9.9, 0), Vector(23, -7.9, 0)),
    Part.ArcOfCircle(Part.Circle(Vector(22, 0, 0), Vector(0, 0, 1), 8), math.radians(-83), math.radians(-7)),
    Part.LineSegment(Vector(29.9, -1, 0), Vector(31.9, -1, 0)),
    Part.LineSegment(Vector(21, -7.9, 0), Vector(21, -9.9, 0)),
    Part.ArcOfCircle(Part.Circle(Vector(22, 0, 0), Vector(0, 0, 1), 10), math.radians(-174), math.radians(-96)),
    Part.LineSegment(Vector(12.1, -1, 0), Vector(14.1, -1, 0)),
    Part.ArcOfCircle(Part.Circle(Vector(22, 0, 0), Vector(0, 0, 1), 8), math.radians(-173), math.radians(-97)),
    Part.LineSegment(Vector(14.1, 1, 0), Vector(12.1, 1, 0)),
    Part.ArcOfCircle(Part.Circle(Vector(22, 0, 0), Vector(0, 0, 1), 10), math.radians(96), math.radians(174)),
    Part.LineSegment(Vector(21, 9.9, 0), Vector(21, 7.9, 0)),
    Part.ArcOfCircle(Part.Circle(Vector(22, 0, 0), Vector(0, 0, 1), 8), math.radians(97), math.radians(173)),
    Part.ArcOfCircle(Part.Circle(Vector(22, 0, 0), Vector(0, 0, 1), 10), math.radians(6), math.radians(84)),
    Part.LineSegment(Vector(31.9, 1, 0), Vector(29.9, 1, 0)),
    Part.ArcOfCircle(Part.Circle(Vector(22, 0, 0), Vector(0, 0, 1), 8), math.radians(7), math.radians(83)),
    Part.LineSegment(Vector(23, 7.9, 0), Vector(23, 9.9, 0)),
    Part.ArcOfCircle(Part.Circle(Vector(22, 0, 0), Vector(0, 0, 1), 6), math.radians(-80), math.radians(-10)),
    Part.LineSegment(Vector(23, -5.9, 0), Vector(23, -3.9, 0)),
    Part.ArcOfCircle(Part.Circle(Vector(22, 0, 0), Vector(0, 0, 1), 4), math.radians(-75), math.radians(-14)),
    Part.LineSegment(Vector(25.9, -1, 0), Vector(27.9, -1, 0)),
    Part.LineSegment(Vector(21, -3.9, 0), Vector(21, -5.9, 0)),
    Part.ArcOfCircle(Part.Circle(Vector(22, 0, 0), Vector(0, 0, 1), 6), math.radians(-170), math.radians(-100)),
    Part.LineSegment(Vector(16.1, -1, 0), Vector(18.1, -1, 0)),
    Part.ArcOfCircle(Part.Circle(Vector(22, 0, 0), Vector(0, 0, 1), 4), math.radians(-166), math.radians(-105)),
    Part.LineSegment(Vector(18.1, 1, 0), Vector(16.1, 1, 0)),
    Part.ArcOfCircle(Part.Circle(Vector(22, 0, 0), Vector(0, 0, 1), 6), math.radians(100), math.radians(170)),
    Part.LineSegment(Vector(21, 5.9, 0), Vector(21, 3.9, 0)),
    Part.ArcOfCircle(Part.Circle(Vector(22, 0, 0), Vector(0, 0, 1), 4), math.radians(105), math.radians(166)),
    Part.ArcOfCircle(Part.Circle(Vector(22, 0, 0), Vector(0, 0, 1), 6), math.radians(10), math.radians(80)),
    Part.LineSegment(Vector(27.9, 1, 0), Vector(25.9, 1, 0)),
    Part.ArcOfCircle(Part.Circle(Vector(22, 0, 0), Vector(0, 0, 1), 4), math.radians(14), math.radians(75)),
    Part.LineSegment(Vector(23, 3.9, 0), Vector(23, 5.9, 0)),
    Part.ArcOfCircle(Part.Circle(Vector(22, 0, 0), Vector(0, 0, 1), 2), math.radians(-59), math.radians(-30)),
    Part.LineSegment(Vector(23, -1.7, 0), Vector(23, -1, 0)),
    Part.LineSegment(Vector(23, -1, 0), Vector(23.7, -1, 0)),
    Part.LineSegment(Vector(21, -1, 0), Vector(21, -1.7, 0)),
    Part.ArcOfCircle(Part.Circle(Vector(22, 0, 0), Vector(0, 0, 1), 2), math.radians(-150), math.radians(-121)),
    Part.LineSegment(Vector(20.3, -1, 0), Vector(21, -1, 0)),
    Part.LineSegment(Vector(21, 1.7, 0), Vector(21, 1, 0)),
    Part.LineSegment(Vector(21, 1, 0), Vector(20.3, 1, 0)),
    Part.ArcOfCircle(Part.Circle(Vector(22, 0, 0), Vector(0, 0, 1), 2), math.radians(121), math.radians(150)),
    Part.LineSegment(Vector(23.7, 1, 0), Vector(23, 1, 0)),
    Part.LineSegment(Vector(23, 1, 0), Vector(23, 1.7, 0)),
    Part.ArcOfCircle(Part.Circle(Vector(22, 0, 0), Vector(0, 0, 1), 2), math.radians(30), math.radians(59)),
], False)
sketch8.addConstraint([
    Sketcher.Constraint("Coincident", 0, 1, 1, 1),
    Sketcher.Constraint("Coincident", 1, 2, 2, 1),
    Sketcher.Constraint("Coincident", 2, 2, 3, 1),
    Sketcher.Constraint("Coincident", 3, 2, 0, 2),
    Sketcher.Constraint("Coincident", 4, 2, 5, 2),
    Sketcher.Constraint("Coincident", 5, 1, 6, 1),
    Sketcher.Constraint("Coincident", 6, 2, 7, 1),
    Sketcher.Constraint("Coincident", 7, 2, 4, 1),
    Sketcher.Constraint("Coincident", 8, 2, 9, 2),
    Sketcher.Constraint("Coincident", 9, 1, 10, 1),
    Sketcher.Constraint("Coincident", 10, 2, 11, 1),
    Sketcher.Constraint("Coincident", 11, 2, 8, 1),
    Sketcher.Constraint("Coincident", 12, 1, 13, 1),
    Sketcher.Constraint("Coincident", 13, 2, 14, 1),
    Sketcher.Constraint("Coincident", 14, 2, 15, 1),
    Sketcher.Constraint("Coincident", 15, 2, 12, 2),
    Sketcher.Constraint("Coincident", 16, 1, 17, 1),
    Sketcher.Constraint("Coincident", 17, 2, 18, 1),
    Sketcher.Constraint("Coincident", 18, 2, 19, 1),
    Sketcher.Constraint("Coincident", 19, 2, 16, 2),
    Sketcher.Constraint("Coincident", 20, 2, 21, 2),
    Sketcher.Constraint("Coincident", 21, 1, 22, 1),
    Sketcher.Constraint("Coincident", 22, 2, 23, 1),
    Sketcher.Constraint("Coincident", 23, 2, 20, 1),
    Sketcher.Constraint("Coincident", 24, 2, 25, 2),
    Sketcher.Constraint("Coincident", 25, 1, 26, 1),
    Sketcher.Constraint("Coincident", 26, 2, 27, 1),
    Sketcher.Constraint("Coincident", 27, 2, 24, 1),
    Sketcher.Constraint("Coincident", 28, 1, 29, 1),
    Sketcher.Constraint("Coincident", 29, 2, 30, 1),
    Sketcher.Constraint("Coincident", 30, 2, 31, 1),
    Sketcher.Constraint("Coincident", 31, 2, 28, 2),
    Sketcher.Constraint("Coincident", 32, 1, 33, 1),
    Sketcher.Constraint("Coincident", 33, 2, 34, 1),
    Sketcher.Constraint("Coincident", 34, 2, 35, 1),
    Sketcher.Constraint("Coincident", 35, 2, 32, 2),
    Sketcher.Constraint("Coincident", 36, 2, 37, 2),
    Sketcher.Constraint("Coincident", 37, 1, 38, 1),
    Sketcher.Constraint("Coincident", 38, 2, 39, 1),
    Sketcher.Constraint("Coincident", 39, 2, 36, 1),
    Sketcher.Constraint("Coincident", 40, 2, 41, 2),
    Sketcher.Constraint("Coincident", 41, 1, 42, 1),
    Sketcher.Constraint("Coincident", 42, 2, 43, 1),
    Sketcher.Constraint("Coincident", 43, 2, 40, 1),
    Sketcher.Constraint("Coincident", 44, 1, 45, 1),
    Sketcher.Constraint("Coincident", 45, 2, 46, 1),
    Sketcher.Constraint("Coincident", 46, 2, 47, 1),
    Sketcher.Constraint("Coincident", 47, 2, 44, 2),
    Sketcher.Constraint("Coincident", 48, 1, 49, 1),
    Sketcher.Constraint("Coincident", 49, 2, 50, 1),
    Sketcher.Constraint("Coincident", 50, 2, 48, 2),
    Sketcher.Constraint("Coincident", 51, 2, 52, 2),
    Sketcher.Constraint("Coincident", 52, 1, 53, 1),
    Sketcher.Constraint("Coincident", 53, 2, 51, 1),
    Sketcher.Constraint("Coincident", 54, 2, 55, 1),
    Sketcher.Constraint("Coincident", 55, 2, 56, 2),
    Sketcher.Constraint("Coincident", 56, 1, 54, 1),
    Sketcher.Constraint("Coincident", 57, 2, 58, 1),
    Sketcher.Constraint("Coincident", 58, 2, 59, 2),
    Sketcher.Constraint("Coincident", 59, 1, 57, 1),
    Sketcher.Constraint("Vertical", 1),
    Sketcher.Constraint("Horizontal", 3),
    Sketcher.Constraint("Vertical", 4),
    Sketcher.Constraint("Horizontal", 6),
    Sketcher.Constraint("Horizontal", 8),
    Sketcher.Constraint("Vertical", 10),
    Sketcher.Constraint("Horizontal", 13),
    Sketcher.Constraint("Vertical", 15),
    Sketcher.Constraint("Vertical", 17),
    Sketcher.Constraint("Horizontal", 19),
    Sketcher.Constraint("Vertical", 20),
    Sketcher.Constraint("Horizontal", 22),
    Sketcher.Constraint("Horizontal", 24),
    Sketcher.Constraint("Vertical", 26),
    Sketcher.Constraint("Horizontal", 29),
    Sketcher.Constraint("Vertical", 31),
    Sketcher.Constraint("Vertical", 33),
    Sketcher.Constraint("Horizontal", 35),
    Sketcher.Constraint("Vertical", 36),
    Sketcher.Constraint("Horizontal", 38),
    Sketcher.Constraint("Horizontal", 40),
    Sketcher.Constraint("Vertical", 42),
    Sketcher.Constraint("Horizontal", 45),
    Sketcher.Constraint("Vertical", 47),
    Sketcher.Constraint("Vertical", 49),
    Sketcher.Constraint("Horizontal", 50),
    Sketcher.Constraint("Vertical", 51),
    Sketcher.Constraint("Horizontal", 53),
    Sketcher.Constraint("Vertical", 54),
    Sketcher.Constraint("Horizontal", 55),
    Sketcher.Constraint("Horizontal", 57),
    Sketcher.Constraint("Vertical", 58),
    Sketcher.Constraint("Coincident", 2, 3, 0, 3),
    Sketcher.Constraint("Coincident", 5, 3, 0, 3),
    Sketcher.Constraint("Coincident", 7, 3, 0, 3),
    Sketcher.Constraint("Coincident", 9, 3, 0, 3),
    Sketcher.Constraint("Coincident", 11, 3, 0, 3),
    Sketcher.Constraint("Coincident", 12, 3, 0, 3),
    Sketcher.Constraint("Coincident", 14, 3, 0, 3),
    Sketcher.Constraint("Coincident", 16, 3, 0, 3),
    Sketcher.Constraint("Coincident", 18, 3, 0, 3),
    Sketcher.Constraint("Coincident", 21, 3, 0, 3),
    Sketcher.Constraint("Coincident", 23, 3, 0, 3),
    Sketcher.Constraint("Coincident", 25, 3, 0, 3),
    Sketcher.Constraint("Coincident", 27, 3, 0, 3),
    Sketcher.Constraint("Coincident", 28, 3, 0, 3),
    Sketcher.Constraint("Coincident", 30, 3, 0, 3),
    Sketcher.Constraint("Coincident", 32, 3, 0, 3),
    Sketcher.Constraint("Coincident", 34, 3, 0, 3),
    Sketcher.Constraint("Coincident", 37, 3, 0, 3),
    Sketcher.Constraint("Coincident", 39, 3, 0, 3),
    Sketcher.Constraint("Coincident", 41, 3, 0, 3),
    Sketcher.Constraint("Coincident", 43, 3, 0, 3),
    Sketcher.Constraint("Coincident", 44, 3, 0, 3),
    Sketcher.Constraint("Coincident", 46, 3, 0, 3),
    Sketcher.Constraint("Coincident", 48, 3, 0, 3),
    Sketcher.Constraint("Coincident", 52, 3, 0, 3),
    Sketcher.Constraint("Coincident", 56, 3, 0, 3),
    Sketcher.Constraint("Coincident", 59, 3, 0, 3),
    Sketcher.Constraint("Equal", 0, 5),
    Sketcher.Constraint("Equal", 2, 7),
    Sketcher.Constraint("Equal", 5, 9),
    Sketcher.Constraint("Equal", 7, 11),
    Sketcher.Constraint("Equal", 9, 12),
    Sketcher.Constraint("Equal", 11, 14),
    Sketcher.Constraint("Equal", 16, 21),
    Sketcher.Constraint("Equal", 18, 23),
    Sketcher.Constraint("Equal", 21, 25),
    Sketcher.Constraint("Equal", 23, 27),
    Sketcher.Constraint("Equal", 25, 28),
    Sketcher.Constraint("Equal", 27, 30),
    Sketcher.Constraint("Equal", 32, 37),
    Sketcher.Constraint("Equal", 34, 39),
    Sketcher.Constraint("Equal", 37, 41),
    Sketcher.Constraint("Equal", 39, 43),
    Sketcher.Constraint("Equal", 41, 44),
    Sketcher.Constraint("Equal", 43, 46),
    Sketcher.Constraint("Equal", 48, 52),
    Sketcher.Constraint("Equal", 52, 56),
    Sketcher.Constraint("Equal", 56, 59),
    Sketcher.Constraint("Symmetric", 5, 1, 8, 2, -1),
    Sketcher.Constraint("Symmetric", 53, 2, 54, 2, -1),
    Sketcher.Constraint("Symmetric", 49, 2, 57, 2, -1),
    Sketcher.Constraint("Horizontal", 0, 1, 4, 2),
    Sketcher.Constraint("Horizontal", 3, 2, 5, 1),
    Sketcher.Constraint("Horizontal", 11, 2, 12, 1),
    Sketcher.Constraint("Horizontal", 10, 2, 14, 2),
    Sketcher.Constraint("Horizontal", 6, 2, 18, 2),
    Sketcher.Constraint("Horizontal", 16, 1, 20, 2),
    Sketcher.Constraint("Horizontal", 19, 2, 21, 1),
    Sketcher.Constraint("Horizontal", 13, 2, 24, 2),
    Sketcher.Constraint("Horizontal", 27, 2, 28, 1),
    Sketcher.Constraint("Horizontal", 26, 2, 30, 2),
    Sketcher.Constraint("Horizontal", 22, 2, 34, 2),
    Sketcher.Constraint("Horizontal", 32, 1, 36, 2),
    Sketcher.Constraint("Horizontal", 35, 2, 37, 1),
    Sketcher.Constraint("Horizontal", 29, 2, 40, 2),
    Sketcher.Constraint("Horizontal", 43, 2, 44, 1),
    Sketcher.Constraint("Horizontal", 42, 2, 46, 2),
    Sketcher.Constraint("Horizontal", 38, 2, 49, 2),
    Sketcher.Constraint("Horizontal", 48, 1, 51, 2),
    Sketcher.Constraint("Horizontal", 50, 2, 52, 1),
    Sketcher.Constraint("Vertical", 7, 2, 9, 1),
    Sketcher.Constraint("Vertical", 15, 2, 16, 1),
    Sketcher.Constraint("Vertical", 23, 2, 25, 1),
    Sketcher.Constraint("Vertical", 31, 2, 32, 1),
    Sketcher.Constraint("Vertical", 39, 2, 41, 1),
    Sketcher.Constraint("Vertical", 47, 2, 48, 1),
    Sketcher.Constraint("Radius", 2, Q("12 mm")),
    Sketcher.Constraint("Radius", 16, Q("10 mm")),
    Sketcher.Constraint("Radius", 18, Q("8 mm")),
    Sketcher.Constraint("Radius", 32, Q("6 mm")),
    Sketcher.Constraint("Radius", 34, Q("4 mm")),
    Sketcher.Constraint("Radius", 48, Q("2 mm")),
    Sketcher.Constraint("DistanceX", -1, 1, 0, 3, Q("22 mm")),
    Sketcher.Constraint("DistanceY", 2, 2, -1, 1, Q("1 mm")),
    Sketcher.Constraint("Radius", 0, Q("14.199886 mm")),
    Sketcher.Constraint("DistanceY", 33, 1, 33, 2, Q("2.044581 mm")),
])
sketch8.setExpression("Constraints[168]", "Params.sketch8_radius")
sketch8.setExpression("Constraints[169]", "Params.sketch8_radius2")
sketch8.setExpression("Constraints[170]", "Params.sketch8_radius3")
sketch8.setExpression("Constraints[171]", "Params.sketch8_radius4")
sketch8.setExpression("Constraints[172]", "Params.sketch8_radius5")
pocket7 = doc.addObject("PartDesign::Pocket", "Pocket006")
body.addObject(pocket7)
pocket7.Profile = sketch8
pocket7.setExpression("Length", "Params.pocket7_length")
pocket7.Reversed = True

doc.recompute()
